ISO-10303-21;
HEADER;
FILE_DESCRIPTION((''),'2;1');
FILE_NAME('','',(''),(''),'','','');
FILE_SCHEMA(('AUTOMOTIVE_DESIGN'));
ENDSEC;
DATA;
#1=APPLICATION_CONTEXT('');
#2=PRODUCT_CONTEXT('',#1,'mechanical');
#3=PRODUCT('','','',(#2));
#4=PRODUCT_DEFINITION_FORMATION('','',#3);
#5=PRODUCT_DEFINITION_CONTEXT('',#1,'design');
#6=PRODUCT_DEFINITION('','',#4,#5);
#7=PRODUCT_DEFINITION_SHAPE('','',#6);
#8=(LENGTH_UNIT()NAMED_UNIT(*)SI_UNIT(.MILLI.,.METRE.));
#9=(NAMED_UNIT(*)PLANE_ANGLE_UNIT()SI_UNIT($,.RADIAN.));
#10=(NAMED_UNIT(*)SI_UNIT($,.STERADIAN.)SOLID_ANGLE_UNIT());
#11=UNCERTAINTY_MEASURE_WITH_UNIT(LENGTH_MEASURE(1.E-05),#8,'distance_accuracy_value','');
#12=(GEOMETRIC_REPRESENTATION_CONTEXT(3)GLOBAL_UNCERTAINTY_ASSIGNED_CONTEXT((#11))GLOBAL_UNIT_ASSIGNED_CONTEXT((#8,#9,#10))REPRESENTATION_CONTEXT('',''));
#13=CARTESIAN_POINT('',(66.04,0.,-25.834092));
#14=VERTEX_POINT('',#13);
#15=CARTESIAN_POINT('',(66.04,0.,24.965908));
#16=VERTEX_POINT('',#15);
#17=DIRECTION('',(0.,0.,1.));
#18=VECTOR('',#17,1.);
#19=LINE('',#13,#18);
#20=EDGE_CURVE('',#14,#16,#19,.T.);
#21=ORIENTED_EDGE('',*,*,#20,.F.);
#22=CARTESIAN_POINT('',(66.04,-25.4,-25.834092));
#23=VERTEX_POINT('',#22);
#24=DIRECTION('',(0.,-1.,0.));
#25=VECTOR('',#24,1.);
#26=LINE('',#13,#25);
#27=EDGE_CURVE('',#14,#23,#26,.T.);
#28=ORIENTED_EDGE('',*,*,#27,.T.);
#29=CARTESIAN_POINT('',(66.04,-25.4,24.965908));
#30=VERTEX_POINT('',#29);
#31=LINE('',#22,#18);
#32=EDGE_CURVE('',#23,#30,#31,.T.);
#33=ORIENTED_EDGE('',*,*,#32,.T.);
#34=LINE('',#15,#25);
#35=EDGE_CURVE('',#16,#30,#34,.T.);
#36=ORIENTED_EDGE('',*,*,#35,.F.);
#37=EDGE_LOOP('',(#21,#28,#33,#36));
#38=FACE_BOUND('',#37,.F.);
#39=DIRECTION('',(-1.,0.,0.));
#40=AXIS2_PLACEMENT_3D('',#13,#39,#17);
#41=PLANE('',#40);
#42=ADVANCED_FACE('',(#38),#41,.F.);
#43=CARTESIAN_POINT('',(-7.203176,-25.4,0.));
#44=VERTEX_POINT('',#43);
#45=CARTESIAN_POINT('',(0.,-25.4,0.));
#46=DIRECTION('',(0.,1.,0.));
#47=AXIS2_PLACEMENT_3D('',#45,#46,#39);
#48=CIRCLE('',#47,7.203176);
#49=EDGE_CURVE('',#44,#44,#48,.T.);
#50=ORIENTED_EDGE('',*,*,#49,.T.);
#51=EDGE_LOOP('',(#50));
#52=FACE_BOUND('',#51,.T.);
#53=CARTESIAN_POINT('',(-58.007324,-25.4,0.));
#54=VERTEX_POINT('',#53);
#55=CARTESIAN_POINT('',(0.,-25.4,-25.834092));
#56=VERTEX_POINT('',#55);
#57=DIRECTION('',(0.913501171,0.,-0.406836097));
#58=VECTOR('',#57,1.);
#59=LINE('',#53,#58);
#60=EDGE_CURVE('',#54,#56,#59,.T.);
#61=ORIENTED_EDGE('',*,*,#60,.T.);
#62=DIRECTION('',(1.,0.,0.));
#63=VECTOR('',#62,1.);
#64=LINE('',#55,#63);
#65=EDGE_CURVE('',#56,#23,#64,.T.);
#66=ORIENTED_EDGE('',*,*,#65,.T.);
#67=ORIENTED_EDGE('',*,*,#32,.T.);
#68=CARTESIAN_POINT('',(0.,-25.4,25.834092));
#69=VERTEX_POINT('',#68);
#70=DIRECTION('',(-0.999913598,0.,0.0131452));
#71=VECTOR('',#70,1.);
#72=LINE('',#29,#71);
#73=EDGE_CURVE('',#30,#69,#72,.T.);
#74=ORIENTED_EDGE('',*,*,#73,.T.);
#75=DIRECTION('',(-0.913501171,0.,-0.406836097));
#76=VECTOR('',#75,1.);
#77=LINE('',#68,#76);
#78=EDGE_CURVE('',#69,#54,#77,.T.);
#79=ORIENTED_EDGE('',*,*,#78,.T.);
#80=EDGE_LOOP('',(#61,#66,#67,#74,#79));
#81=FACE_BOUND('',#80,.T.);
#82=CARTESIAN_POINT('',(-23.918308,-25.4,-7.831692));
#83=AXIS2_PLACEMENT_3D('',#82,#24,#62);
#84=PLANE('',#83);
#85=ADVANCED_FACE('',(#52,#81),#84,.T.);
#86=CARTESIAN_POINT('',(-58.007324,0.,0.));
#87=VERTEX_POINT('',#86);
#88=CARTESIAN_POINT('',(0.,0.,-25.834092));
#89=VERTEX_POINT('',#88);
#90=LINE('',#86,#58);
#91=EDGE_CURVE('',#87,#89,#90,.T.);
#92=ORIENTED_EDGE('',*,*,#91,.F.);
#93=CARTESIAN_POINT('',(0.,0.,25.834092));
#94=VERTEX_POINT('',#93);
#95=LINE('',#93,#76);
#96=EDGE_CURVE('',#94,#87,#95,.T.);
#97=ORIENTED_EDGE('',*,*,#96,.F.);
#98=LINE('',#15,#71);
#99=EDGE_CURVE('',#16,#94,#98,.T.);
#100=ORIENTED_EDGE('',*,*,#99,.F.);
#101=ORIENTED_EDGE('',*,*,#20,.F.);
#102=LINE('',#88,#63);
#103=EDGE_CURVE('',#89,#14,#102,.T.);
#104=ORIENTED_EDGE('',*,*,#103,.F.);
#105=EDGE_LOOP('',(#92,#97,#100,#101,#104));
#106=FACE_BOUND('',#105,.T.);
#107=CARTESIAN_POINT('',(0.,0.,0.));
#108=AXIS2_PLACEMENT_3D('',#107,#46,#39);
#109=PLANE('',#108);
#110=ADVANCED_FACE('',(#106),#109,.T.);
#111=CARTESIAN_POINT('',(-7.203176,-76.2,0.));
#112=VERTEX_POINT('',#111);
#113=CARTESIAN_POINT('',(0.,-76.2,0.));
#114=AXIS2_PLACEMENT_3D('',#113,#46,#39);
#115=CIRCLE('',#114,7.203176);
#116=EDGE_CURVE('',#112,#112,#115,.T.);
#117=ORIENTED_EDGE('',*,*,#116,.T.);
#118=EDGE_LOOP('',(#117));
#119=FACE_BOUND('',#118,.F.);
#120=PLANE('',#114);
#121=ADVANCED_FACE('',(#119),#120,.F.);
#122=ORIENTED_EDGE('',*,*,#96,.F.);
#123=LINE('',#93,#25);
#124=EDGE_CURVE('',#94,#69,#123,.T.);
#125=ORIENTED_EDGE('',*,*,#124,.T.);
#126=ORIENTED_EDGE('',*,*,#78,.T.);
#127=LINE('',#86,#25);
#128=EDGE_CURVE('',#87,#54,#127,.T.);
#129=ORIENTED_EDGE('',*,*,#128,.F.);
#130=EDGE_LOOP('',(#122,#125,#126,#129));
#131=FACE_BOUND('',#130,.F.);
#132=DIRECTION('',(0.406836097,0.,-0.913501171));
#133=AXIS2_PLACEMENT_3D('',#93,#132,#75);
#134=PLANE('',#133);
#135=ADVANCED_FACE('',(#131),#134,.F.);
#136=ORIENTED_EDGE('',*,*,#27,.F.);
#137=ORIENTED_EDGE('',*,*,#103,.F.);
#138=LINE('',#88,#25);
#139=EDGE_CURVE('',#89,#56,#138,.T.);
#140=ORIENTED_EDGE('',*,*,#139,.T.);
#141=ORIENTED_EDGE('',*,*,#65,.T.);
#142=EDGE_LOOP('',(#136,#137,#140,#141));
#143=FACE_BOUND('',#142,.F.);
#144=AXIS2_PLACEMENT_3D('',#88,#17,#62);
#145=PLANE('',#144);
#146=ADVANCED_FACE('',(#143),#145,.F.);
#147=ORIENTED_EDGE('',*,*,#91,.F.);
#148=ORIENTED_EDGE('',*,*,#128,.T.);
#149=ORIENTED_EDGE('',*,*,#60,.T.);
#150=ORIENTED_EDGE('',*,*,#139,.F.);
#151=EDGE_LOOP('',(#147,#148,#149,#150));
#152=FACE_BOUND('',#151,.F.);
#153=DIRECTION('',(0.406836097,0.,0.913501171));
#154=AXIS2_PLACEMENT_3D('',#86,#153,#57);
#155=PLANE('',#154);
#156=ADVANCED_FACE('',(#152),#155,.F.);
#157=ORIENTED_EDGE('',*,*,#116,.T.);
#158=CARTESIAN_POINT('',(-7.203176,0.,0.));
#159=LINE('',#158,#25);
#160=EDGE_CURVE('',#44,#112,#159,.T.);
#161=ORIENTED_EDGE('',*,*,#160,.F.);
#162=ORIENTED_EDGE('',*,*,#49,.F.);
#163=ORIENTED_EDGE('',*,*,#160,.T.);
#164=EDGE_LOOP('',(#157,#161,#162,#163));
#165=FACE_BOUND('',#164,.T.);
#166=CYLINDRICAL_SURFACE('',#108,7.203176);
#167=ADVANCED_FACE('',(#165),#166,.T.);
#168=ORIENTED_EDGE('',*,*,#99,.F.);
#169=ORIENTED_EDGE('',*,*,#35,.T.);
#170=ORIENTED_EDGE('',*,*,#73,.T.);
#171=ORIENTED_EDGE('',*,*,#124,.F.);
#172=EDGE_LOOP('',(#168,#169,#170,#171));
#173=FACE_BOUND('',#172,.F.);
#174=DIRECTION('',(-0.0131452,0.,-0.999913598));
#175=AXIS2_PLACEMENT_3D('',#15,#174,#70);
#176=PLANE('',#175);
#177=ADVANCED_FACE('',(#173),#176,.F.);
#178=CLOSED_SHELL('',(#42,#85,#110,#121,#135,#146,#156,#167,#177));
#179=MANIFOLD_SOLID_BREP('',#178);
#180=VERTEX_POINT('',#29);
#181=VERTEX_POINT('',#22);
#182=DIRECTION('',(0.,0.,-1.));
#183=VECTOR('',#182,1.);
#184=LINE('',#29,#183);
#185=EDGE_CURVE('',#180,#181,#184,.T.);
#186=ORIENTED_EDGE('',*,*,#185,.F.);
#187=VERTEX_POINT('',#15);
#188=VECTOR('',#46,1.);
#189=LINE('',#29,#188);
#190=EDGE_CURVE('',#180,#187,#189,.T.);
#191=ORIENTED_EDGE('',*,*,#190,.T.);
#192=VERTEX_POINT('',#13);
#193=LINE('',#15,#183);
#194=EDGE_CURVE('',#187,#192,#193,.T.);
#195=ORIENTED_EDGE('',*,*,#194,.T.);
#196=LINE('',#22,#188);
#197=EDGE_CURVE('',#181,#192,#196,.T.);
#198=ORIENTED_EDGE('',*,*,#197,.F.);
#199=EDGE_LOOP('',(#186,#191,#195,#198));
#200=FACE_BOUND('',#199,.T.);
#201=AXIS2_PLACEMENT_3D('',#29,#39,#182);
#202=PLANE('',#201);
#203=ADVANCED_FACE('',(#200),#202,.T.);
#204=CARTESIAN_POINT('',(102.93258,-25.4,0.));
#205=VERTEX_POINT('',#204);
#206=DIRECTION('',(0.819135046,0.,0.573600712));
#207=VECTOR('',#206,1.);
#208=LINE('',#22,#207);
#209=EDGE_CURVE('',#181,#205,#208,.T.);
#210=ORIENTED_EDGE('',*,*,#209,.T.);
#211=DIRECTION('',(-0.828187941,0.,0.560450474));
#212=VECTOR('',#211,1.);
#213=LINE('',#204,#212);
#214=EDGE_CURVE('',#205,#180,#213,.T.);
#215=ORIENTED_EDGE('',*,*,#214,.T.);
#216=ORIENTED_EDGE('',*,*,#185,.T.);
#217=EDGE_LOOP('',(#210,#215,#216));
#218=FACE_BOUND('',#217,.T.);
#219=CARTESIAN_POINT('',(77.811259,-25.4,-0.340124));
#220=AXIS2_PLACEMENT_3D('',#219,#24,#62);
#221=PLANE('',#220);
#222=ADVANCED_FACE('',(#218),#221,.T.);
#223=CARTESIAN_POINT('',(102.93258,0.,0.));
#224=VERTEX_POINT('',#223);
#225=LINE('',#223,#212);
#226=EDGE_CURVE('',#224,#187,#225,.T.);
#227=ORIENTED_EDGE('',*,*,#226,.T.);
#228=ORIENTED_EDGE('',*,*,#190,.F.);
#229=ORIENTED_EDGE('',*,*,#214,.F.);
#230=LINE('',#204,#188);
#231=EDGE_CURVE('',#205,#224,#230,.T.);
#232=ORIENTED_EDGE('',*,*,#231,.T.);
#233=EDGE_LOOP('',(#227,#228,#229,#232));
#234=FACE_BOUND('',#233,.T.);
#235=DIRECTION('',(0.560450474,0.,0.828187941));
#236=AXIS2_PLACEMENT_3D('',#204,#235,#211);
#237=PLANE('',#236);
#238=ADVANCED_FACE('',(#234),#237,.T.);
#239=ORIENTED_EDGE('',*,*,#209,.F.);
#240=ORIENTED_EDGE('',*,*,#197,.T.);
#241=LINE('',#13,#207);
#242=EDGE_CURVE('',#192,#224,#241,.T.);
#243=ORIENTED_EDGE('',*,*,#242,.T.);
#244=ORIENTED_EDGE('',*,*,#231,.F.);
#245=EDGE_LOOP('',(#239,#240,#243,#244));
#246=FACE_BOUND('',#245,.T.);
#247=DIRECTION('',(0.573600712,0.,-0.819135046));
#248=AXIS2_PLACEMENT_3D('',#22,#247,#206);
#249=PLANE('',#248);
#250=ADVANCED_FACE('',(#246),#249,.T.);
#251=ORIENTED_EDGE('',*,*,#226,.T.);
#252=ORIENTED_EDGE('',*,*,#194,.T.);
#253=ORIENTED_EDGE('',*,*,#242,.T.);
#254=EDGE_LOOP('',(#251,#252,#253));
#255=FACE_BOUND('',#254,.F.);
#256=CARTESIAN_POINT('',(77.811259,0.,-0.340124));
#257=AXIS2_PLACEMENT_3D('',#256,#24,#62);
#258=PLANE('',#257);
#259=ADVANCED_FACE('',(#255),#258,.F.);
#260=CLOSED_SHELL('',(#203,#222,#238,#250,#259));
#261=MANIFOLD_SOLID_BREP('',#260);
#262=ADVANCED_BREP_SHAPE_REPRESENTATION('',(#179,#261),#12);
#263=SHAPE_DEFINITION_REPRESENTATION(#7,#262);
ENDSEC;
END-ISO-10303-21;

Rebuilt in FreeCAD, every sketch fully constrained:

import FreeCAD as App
import Part
import Sketcher

V = App.Vector
Q = App.Units.Quantity


def add_polygon(sketch, points):
    """Adds a closed chain of lines whose ends are joined by coincident constraints."""
    first, n = sketch.GeometryCount, len(points)
    for a, b in zip(points, points[1:] + points[:1]):
        sketch.addGeometry(Part.LineSegment(App.Vector(*a, 0), App.Vector(*b, 0)), False)
    for i in range(n):
        sketch.addConstraint(Sketcher.Constraint("Coincident", first + i, 2, first + (i + 1) % n, 1))

doc = App.newDocument("Part")
body = doc.addObject("PartDesign::Body", "Body")

# Sketch on XZ plane
sketch1 = body.newObject("Sketcher::SketchObject", "Sketch")
sketch1.AttachmentSupport = (doc.getObject("XZ_Plane"), [""])
sketch1.MapMode = "FlatFace"
add_polygon(sketch1, [(-58, 0), (0, -26), (66, -26), (66, 25), (0, 26)])  # lines 0-4
sketch1.addConstraint([
    Sketcher.Constraint("Horizontal", 1),
    Sketcher.Constraint("Vertical", 2),
    Sketcher.Constraint("Symmetric", 0, 2, 3, 2, -1, 1),
    Sketcher.Constraint("PointOnObject", 0, 2, -2),
    Sketcher.Constraint("PointOnObject", 4, 2, -1),
    Sketcher.Constraint("DistanceY", 2, 1, 2, 2, Q("2 in")),
    Sketcher.Constraint("DistanceX", 1, 1, 1, 2, Q("2.6 in")),
    Sketcher.Constraint("Distance", 0, Q("2.5 in")),
    Sketcher.Constraint("DistanceY", 0, 2, -1, 1, Q("25.834092 mm")),
])
pad1 = body.newObject("PartDesign::Pad", "Pad")
pad1.Profile = sketch1
pad1.Length = Q("1 in")

# Sketch on XZ plane
sketch2 = body.newObject("Sketcher::SketchObject", "Sketch001")
sketch2.AttachmentSupport = (doc.getObject("XZ_Plane"), [""])
sketch2.MapMode = "FlatFace"
sketch2.addGeometry(Part.Circle(V(0, 0, 0), V(0, 0, 1), 7), False)
sketch2.addConstraint([
    Sketcher.Constraint("Coincident", 0, 3, -1, 1),
    Sketcher.Constraint("Diameter", 0, Q("14.406352 mm")),
])
pad2 = body.newObject("PartDesign::Pad", "Pad001")
pad2.Profile = sketch2
pad2.Length = Q("3 in")
body2 = doc.addObject("PartDesign::Body", "Body001")

# Sketch on XZ plane
sketch3 = body2.newObject("Sketcher::SketchObject", "Sketch002")
sketch3.AttachmentSupport = (doc.getObject("XZ_Plane001"), [""])
sketch3.MapMode = "FlatFace"
sketch3.AttachmentOffset = App.Placement(V(0, 0, 1 * 25.4), App.Rotation())
add_polygon(sketch3, [(103, 0), (66, 25), (66, -26)])  # lines 0-2
sketch3.addConstraint([
    Sketcher.Constraint("Vertical", 1),
    Sketcher.Constraint("PointOnObject", 2, 2, -1),
    Sketcher.Constraint("DistanceY", 1, 2, 1, 1, Q("2 in")),
    Sketcher.Constraint("DistanceX", -1, 1, 0, 2, Q("2.6 in")),
    Sketcher.Constraint("Distance", 2, Q("45.038459 mm")),
    Sketcher.Constraint("DistanceY", 1, 2, -1, 1, Q("25.834092 mm")),
])
pad3 = body2.newObject("PartDesign::Pad", "Pad002")
pad3.Profile = sketch3
pad3.Length = Q("1 in")
pad3.Reversed = True

doc.recompute()
